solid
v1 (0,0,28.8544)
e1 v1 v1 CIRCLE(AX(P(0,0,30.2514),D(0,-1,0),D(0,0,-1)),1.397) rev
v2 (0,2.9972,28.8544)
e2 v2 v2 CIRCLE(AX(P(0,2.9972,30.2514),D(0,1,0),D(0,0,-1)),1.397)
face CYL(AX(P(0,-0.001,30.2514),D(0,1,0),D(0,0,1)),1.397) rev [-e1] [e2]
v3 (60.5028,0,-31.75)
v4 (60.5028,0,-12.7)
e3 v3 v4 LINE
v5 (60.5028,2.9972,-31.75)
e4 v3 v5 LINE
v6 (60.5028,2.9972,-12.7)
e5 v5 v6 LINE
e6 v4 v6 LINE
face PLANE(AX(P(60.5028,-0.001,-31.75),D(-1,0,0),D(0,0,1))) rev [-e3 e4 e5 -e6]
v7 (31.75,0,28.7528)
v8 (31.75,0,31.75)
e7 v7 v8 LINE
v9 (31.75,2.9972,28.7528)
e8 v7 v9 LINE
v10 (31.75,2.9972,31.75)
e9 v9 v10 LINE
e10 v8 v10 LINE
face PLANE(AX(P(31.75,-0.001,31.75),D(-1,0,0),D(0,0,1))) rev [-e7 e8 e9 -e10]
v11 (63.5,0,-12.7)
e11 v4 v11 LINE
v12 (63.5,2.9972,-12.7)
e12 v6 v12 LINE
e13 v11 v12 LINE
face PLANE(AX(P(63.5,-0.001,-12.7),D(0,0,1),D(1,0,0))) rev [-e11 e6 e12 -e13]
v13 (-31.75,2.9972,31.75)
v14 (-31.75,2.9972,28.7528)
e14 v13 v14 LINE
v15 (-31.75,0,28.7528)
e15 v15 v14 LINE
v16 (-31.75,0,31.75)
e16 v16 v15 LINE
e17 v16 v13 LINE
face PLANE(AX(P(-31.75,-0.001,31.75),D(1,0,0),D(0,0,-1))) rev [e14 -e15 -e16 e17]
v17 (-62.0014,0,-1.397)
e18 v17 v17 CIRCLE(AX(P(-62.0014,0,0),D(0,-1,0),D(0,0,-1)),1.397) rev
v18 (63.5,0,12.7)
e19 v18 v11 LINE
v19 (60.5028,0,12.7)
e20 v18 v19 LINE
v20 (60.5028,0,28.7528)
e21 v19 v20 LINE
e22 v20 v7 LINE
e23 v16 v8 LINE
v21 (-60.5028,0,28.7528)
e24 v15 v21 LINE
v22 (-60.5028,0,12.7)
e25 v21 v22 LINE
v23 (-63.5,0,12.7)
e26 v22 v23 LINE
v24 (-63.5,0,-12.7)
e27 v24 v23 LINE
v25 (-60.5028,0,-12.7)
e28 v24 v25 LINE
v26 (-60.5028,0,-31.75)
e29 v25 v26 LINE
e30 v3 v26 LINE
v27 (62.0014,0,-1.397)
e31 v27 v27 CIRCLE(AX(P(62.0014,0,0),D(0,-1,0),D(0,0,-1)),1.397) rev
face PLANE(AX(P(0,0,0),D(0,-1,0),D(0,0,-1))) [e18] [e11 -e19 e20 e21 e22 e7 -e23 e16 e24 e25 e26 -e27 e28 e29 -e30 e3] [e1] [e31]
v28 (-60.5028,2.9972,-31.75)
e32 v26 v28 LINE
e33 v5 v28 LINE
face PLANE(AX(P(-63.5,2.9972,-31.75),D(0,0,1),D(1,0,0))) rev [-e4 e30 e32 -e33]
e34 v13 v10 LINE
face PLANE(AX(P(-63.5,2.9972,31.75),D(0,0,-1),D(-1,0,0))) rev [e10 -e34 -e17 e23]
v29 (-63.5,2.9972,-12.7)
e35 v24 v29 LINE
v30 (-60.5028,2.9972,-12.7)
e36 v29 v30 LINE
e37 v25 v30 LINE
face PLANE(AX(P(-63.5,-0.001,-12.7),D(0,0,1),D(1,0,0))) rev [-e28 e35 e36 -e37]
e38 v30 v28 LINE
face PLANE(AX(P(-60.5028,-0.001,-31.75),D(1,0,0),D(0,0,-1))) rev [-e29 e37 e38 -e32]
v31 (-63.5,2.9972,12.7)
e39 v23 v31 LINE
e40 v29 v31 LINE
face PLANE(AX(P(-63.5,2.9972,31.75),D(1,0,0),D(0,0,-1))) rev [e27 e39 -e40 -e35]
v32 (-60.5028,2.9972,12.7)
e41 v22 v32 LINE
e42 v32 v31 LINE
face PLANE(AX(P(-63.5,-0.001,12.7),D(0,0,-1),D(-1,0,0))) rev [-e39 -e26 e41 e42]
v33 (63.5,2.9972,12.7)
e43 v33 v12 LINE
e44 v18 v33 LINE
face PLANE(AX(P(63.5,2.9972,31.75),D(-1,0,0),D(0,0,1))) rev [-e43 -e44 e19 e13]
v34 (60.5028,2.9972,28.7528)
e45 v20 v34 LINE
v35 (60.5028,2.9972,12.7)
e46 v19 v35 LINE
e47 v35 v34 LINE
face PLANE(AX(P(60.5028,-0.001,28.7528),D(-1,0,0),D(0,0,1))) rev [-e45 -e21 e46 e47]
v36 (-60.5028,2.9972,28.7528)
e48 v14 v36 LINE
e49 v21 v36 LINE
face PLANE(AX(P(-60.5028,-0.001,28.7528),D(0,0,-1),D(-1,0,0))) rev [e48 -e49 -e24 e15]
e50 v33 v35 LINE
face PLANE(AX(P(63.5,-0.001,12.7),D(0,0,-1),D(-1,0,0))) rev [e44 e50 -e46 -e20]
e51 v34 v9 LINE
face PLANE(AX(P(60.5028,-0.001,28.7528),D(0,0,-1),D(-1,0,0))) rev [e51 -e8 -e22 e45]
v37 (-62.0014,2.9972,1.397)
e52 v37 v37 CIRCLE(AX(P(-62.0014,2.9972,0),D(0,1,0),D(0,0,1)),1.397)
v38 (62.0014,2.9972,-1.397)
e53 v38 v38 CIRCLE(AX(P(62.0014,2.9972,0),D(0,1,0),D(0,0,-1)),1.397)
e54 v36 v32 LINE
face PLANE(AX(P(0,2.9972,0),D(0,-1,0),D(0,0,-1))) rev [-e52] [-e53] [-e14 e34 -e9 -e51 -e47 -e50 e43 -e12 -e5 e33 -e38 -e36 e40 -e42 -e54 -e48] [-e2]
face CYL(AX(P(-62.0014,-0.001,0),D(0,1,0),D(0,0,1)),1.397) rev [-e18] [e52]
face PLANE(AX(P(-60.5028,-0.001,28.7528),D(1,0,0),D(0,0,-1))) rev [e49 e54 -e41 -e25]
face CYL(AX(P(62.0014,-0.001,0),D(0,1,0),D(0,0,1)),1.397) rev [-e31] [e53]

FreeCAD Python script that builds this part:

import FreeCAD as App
import Part
import Sketcher

V = App.Vector
Q = App.Units.Quantity


def add_polygon(sketch, points):
    """Adds a closed chain of lines whose ends are joined by coincident constraints."""
    first, n = sketch.GeometryCount, len(points)
    for a, b in zip(points, points[1:] + points[:1]):
        sketch.addGeometry(Part.LineSegment(App.Vector(*a, 0), App.Vector(*b, 0)), False)
    for i in range(n):
        sketch.addConstraint(Sketcher.Constraint("Coincident", first + i, 2, first + (i + 1) % n, 1))

doc = App.newDocument("Part")
params = doc.addObject("Spreadsheet::Sheet", "Params")
for row, (alias, value) in enumerate([
    ("sketch1_width", "5 in"),
    ("sketch1_height", "2.5 in"),
    ("pad1_length", "0.118 in"),
    ("sketch2_diameter", "0.11 in"),
    ("sketch3_diameter", "0.11 in"),
    ("sketch4_diameter", "0.11 in"),
    ("sketch5_width", "1.25 in"),
    ("sketch5_height", "0.75 in"),
    ("sketch5_width2", "0.118 in"),
    ("sketch6_height", "0.75 in"),
    ("sketch6_width", "0.118 in"),
    ("sketch7_width", "1.25 in"),
    ("sketch7_height", "0.75 in"),
    ("sketch7_width2", "1.132 in"),
    ("sketch8_height", "0.75 in"),
    ("sketch8_width", "0.118 in"),
], start=1):
    params.set(f"A{row}", alias)
    params.set(f"B{row}", "=" + value)
    params.setAlias(f"B{row}", alias)

body = doc.addObject("PartDesign::Body", "Body")

# Sketch on XZ plane
sketch1 = doc.addObject("Sketcher::SketchObject", "Sketch")
body.addObject(sketch1)
sketch1.AttachmentSupport = (doc.XZ_Plane, [""])
sketch1.MapMode = "FlatFace"
add_polygon(sketch1, [(-64, -32), (-64, 32), (64, 32), (64, -32)])  # lines 0-3
sketch1.addConstraint([
    Sketcher.Constraint("Vertical", 0),
    Sketcher.Constraint("Horizontal", 1),
    Sketcher.Constraint("Vertical", 2),
    Sketcher.Constraint("Horizontal", 3),
    Sketcher.Constraint("Symmetric", 0, 2, 2, 2, -1, 1),
    Sketcher.Constraint("DistanceX", 1, 1, 1, 2, Q("5 in")),
    Sketcher.Constraint("DistanceY", 0, 1, 0, 2, Q("2.5 in")),
])
sketch1.setExpression("Constraints[9]", "Params.sketch1_width")
sketch1.setExpression("Constraints[10]", "Params.sketch1_height")
pad1 = doc.addObject("PartDesign::Pad", "Pad")
body.addObject(pad1)
pad1.Profile = sketch1
pad1.setExpression("Length", "Params.pad1_length")
pad1.Reversed = True

# Sketch on XZ plane
sketch2 = doc.addObject("Sketcher::SketchObject", "Sketch001")
body.addObject(sketch2)
sketch2.AttachmentSupport = (doc.XZ_Plane, [""])
sketch2.MapMode = "FlatFace"
sketch2.AttachmentOffset = App.Placement(V(0, 0, -0.118 * 25.4), App.Rotation())
sketch2.addGeometry(Part.Circle(V(0, 30.3, 0), V(0, 0, 1), 1.4), False)
sketch2.addConstraint([
    Sketcher.Constraint("PointOnObject", 0, 3, -2),
    Sketcher.Constraint("Diameter", 0, Q("0.11 in")),
    Sketcher.Constraint("DistanceY", -1, 1, 0, 3, Q("1.191 in")),
])
sketch2.setExpression("Constraints[1]", "Params.sketch2_diameter")
pocket1 = doc.addObject("PartDesign::Pocket", "Pocket")
body.addObject(pocket1)
pocket1.Profile = sketch2
pocket1.Type = "UpToFirst"
pocket1.Reversed = True

# Sketch on XZ plane
sketch3 = doc.addObject("Sketcher::SketchObject", "Sketch002")
body.addObject(sketch3)
sketch3.AttachmentSupport = (doc.XZ_Plane, [""])
sketch3.MapMode = "FlatFace"
sketch3.AttachmentOffset = App.Placement(V(0, 0, -0.118 * 25.4), App.Rotation())
sketch3.addGeometry(Part.Circle(V(-62, 0, 0), V(0, 0, 1), 1.4), False)
sketch3.addConstraint([
    Sketcher.Constraint("PointOnObject", 0, 3, -1),
    Sketcher.Constraint("Diameter", 0, Q("0.11 in")),
    Sketcher.Constraint("DistanceX", 0, 3, -1, 1, Q("2.441 in")),
])
sketch3.setExpression("Constraints[1]", "Params.sketch3_diameter")
pocket2 = doc.addObject("PartDesign::Pocket", "Pocket001")
body.addObject(pocket2)
pocket2.Profile = sketch3
pocket2.Type = "UpToFirst"
pocket2.Reversed = True

# Sketch on XZ plane
sketch4 = doc.addObject("Sketcher::SketchObject", "Sketch003")
body.addObject(sketch4)
sketch4.AttachmentSupport = (doc.XZ_Plane, [""])
sketch4.MapMode = "FlatFace"
sketch4.AttachmentOffset = App.Placement(V(0, 0, -0.118 * 25.4), App.Rotation())
sketch4.addGeometry(Part.Circle(V(62, 0, 0), V(0, 0, 1), 1.4), False)
sketch4.addConstraint([
    Sketcher.Constraint("PointOnObject", 0, 3, -1),
    Sketcher.Constraint("Diameter", 0, Q("0.11 in")),
    Sketcher.Constraint("DistanceX", -1, 1, 0, 3, Q("2.441 in")),
])
sketch4.setExpression("Constraints[1]", "Params.sketch4_diameter")
pocket3 = doc.addObject("PartDesign::Pocket", "Pocket002")
body.addObject(pocket3)
pocket3.Profile = sketch4
pocket3.Type = "UpToFirst"
pocket3.Reversed = True

# Sketch on XZ plane
sketch5 = doc.addObject("Sketcher::SketchObject", "Sketch004")
body.addObject(sketch5)
sketch5.AttachmentSupport = (doc.XZ_Plane, [""])
sketch5.MapMode = "FlatFace"
sketch5.AttachmentOffset = App.Placement(V(0, 0, -0.118 * 25.4), App.Rotation())
add_polygon(sketch5, [(31.8, 31.8), (63.5, 31.8), (63.5, 12.7), (60.5, 12.7), (60.5, 28.8), (31.8, 28.8)])  # lines 0-5
sketch5.addConstraint([
    Sketcher.Constraint("Horizontal", 0),
    Sketcher.Constraint("Vertical", 1),
    Sketcher.Constraint("Horizontal", 2),
    Sketcher.Constraint("Vertical", 3),
    Sketcher.Constraint("Horizontal", 4),
    Sketcher.Constraint("Vertical", 5),
    Sketcher.Constraint("Equal", 2, 5),
    Sketcher.Constraint("DistanceX", 0, 1, 0, 2, Q("1.25 in")),
    Sketcher.Constraint("DistanceY", 1, 2, 1, 1, Q("0.75 in")),
    Sketcher.Constraint("DistanceX", -1, 1, 0, 2, Q("2.5 in")),
    Sketcher.Constraint("DistanceY", -1, 1, 1, 2, Q("0.5 in")),
    Sketcher.Constraint("DistanceX", 2, 2, 2, 1, Q("0.118 in")),
])
sketch5.setExpression("Constraints[13]", "Params.sketch5_width")
sketch5.setExpression("Constraints[14]", "Params.sketch5_height")
sketch5.setExpression("Constraints[17]", "Params.sketch5_width2")
pocket4 = doc.addObject("PartDesign::Pocket", "Pocket003")
body.addObject(pocket4)
pocket4.Profile = sketch5
pocket4.Type = "UpToFirst"
pocket4.Reversed = True

# Sketch on XZ plane
sketch6 = doc.addObject("Sketcher::SketchObject", "Sketch005")
body.addObject(sketch6)
sketch6.AttachmentSupport = (doc.XZ_Plane, [""])
sketch6.MapMode = "FlatFace"
sketch6.AttachmentOffset = App.Placement(V(0, 0, -0.118 * 25.4), App.Rotation())
add_polygon(sketch6, [(-63.5, -31.8), (-63.5, -12.7), (-60.5, -12.7), (-60.5, -31.8)])  # lines 0-3
sketch6.addConstraint([
    Sketcher.Constraint("Vertical", 0),
    Sketcher.Constraint("Horizontal", 1),
    Sketcher.Constraint("Vertical", 2),
    Sketcher.Constraint("Horizontal", 3),
    Sketcher.Constraint("DistanceY", 0, 1, 0, 2, Q("0.75 in")),
    Sketcher.Constraint("DistanceX", 0, 2, -1, 1, Q("2.5 in")),
    Sketcher.Constraint("DistanceY", 0, 2, -1, 1, Q("0.5 in")),
    Sketcher.Constraint("DistanceX", 1, 1, 1, 2, Q("0.118 in")),
])
sketch6.setExpression("Constraints[8]", "Params.sketch6_height")
sketch6.setExpression("Constraints[11]", "Params.sketch6_width")
pocket5 = doc.addObject("PartDesign::Pocket", "Pocket004")
body.addObject(pocket5)
pocket5.Profile = sketch6
pocket5.Type = "UpToFirst"
pocket5.Reversed = True

# Sketch on XZ plane
sketch7 = doc.addObject("Sketcher::SketchObject", "Sketch006")
body.addObject(sketch7)
sketch7.AttachmentSupport = (doc.XZ_Plane, [""])
sketch7.MapMode = "FlatFace"
sketch7.AttachmentOffset = App.Placement(V(0, 0, -0.118 * 25.4), App.Rotation())
add_polygon(sketch7, [(-63.5, 31.8), (-31.8, 31.8), (-31.8, 28.8), (-60.5, 28.8), (-60.5, 12.7), (-63.5, 12.7)])  # lines 0-5
sketch7.addConstraint([
    Sketcher.Constraint("Horizontal", 0),
    Sketcher.Constraint("Vertical", 1),
    Sketcher.Constraint("Horizontal", 2),
    Sketcher.Constraint("Vertical", 3),
    Sketcher.Constraint("Horizontal", 4),
    Sketcher.Constraint("Vertical", 5),
    Sketcher.Constraint("Equal", 4, 1),
    Sketcher.Constraint("DistanceX", 0, 1, 0, 2, Q("1.25 in")),
    Sketcher.Constraint("DistanceY", 5, 1, 5, 2, Q("0.75 in")),
    Sketcher.Constraint("DistanceY", -1, 1, 3, 2, Q("0.5 in")),
    Sketcher.Constraint("DistanceX", 4, 2, -1, 1, Q("2.5 in")),
    Sketcher.Constraint("DistanceX", 2, 2, 2, 1, Q("1.132 in")),
])
sketch7.setExpression("Constraints[13]", "Params.sketch7_width")
sketch7.setExpression("Constraints[14]", "Params.sketch7_height")
sketch7.setExpression("Constraints[17]", "Params.sketch7_width2")
pocket6 = doc.addObject("PartDesign::Pocket", "Pocket005")
body.addObject(pocket6)
pocket6.Profile = sketch7
pocket6.Type = "UpToFirst"
pocket6.Reversed = True

# Sketch on XZ plane
sketch8 = doc.addObject("Sketcher::SketchObject", "Sketch007")
body.addObject(sketch8)
sketch8.AttachmentSupport = (doc.XZ_Plane, [""])
sketch8.MapMode = "FlatFace"
sketch8.AttachmentOffset = App.Placement(V(0, 0, -0.118 * 25.4), App.Rotation())
add_polygon(sketch8, [(60.5, -31.8), (60.5, -12.7), (63.5, -12.7), (63.5, -31.8)])  # lines 0-3
sketch8.addConstraint([
    Sketcher.Constraint("Vertical", 0),
    Sketcher.Constraint("Horizontal", 1),
    Sketcher.Constraint("Vertical", 2),
    Sketcher.Constraint("Horizontal", 3),
    Sketcher.Constraint("DistanceY", 0, 1, 0, 2, Q("0.75 in")),
    Sketcher.Constraint("DistanceY", 0, 2, -1, 1, Q("0.5 in")),
    Sketcher.Constraint("DistanceX", -1, 1, 1, 2, Q("2.5 in")),
    Sketcher.Constraint("DistanceX", 1, 1, 1, 2, Q("0.118 in")),
])
sketch8.setExpression("Constraints[8]", "Params.sketch8_height")
sketch8.setExpression("Constraints[11]", "Params.sketch8_width")
pocket7 = doc.addObject("PartDesign::Pocket", "Pocket006")
body.addObject(pocket7)
pocket7.Profile = sketch8
pocket7.Type = "UpToFirst"
pocket7.Reversed = True

doc.recompute()
